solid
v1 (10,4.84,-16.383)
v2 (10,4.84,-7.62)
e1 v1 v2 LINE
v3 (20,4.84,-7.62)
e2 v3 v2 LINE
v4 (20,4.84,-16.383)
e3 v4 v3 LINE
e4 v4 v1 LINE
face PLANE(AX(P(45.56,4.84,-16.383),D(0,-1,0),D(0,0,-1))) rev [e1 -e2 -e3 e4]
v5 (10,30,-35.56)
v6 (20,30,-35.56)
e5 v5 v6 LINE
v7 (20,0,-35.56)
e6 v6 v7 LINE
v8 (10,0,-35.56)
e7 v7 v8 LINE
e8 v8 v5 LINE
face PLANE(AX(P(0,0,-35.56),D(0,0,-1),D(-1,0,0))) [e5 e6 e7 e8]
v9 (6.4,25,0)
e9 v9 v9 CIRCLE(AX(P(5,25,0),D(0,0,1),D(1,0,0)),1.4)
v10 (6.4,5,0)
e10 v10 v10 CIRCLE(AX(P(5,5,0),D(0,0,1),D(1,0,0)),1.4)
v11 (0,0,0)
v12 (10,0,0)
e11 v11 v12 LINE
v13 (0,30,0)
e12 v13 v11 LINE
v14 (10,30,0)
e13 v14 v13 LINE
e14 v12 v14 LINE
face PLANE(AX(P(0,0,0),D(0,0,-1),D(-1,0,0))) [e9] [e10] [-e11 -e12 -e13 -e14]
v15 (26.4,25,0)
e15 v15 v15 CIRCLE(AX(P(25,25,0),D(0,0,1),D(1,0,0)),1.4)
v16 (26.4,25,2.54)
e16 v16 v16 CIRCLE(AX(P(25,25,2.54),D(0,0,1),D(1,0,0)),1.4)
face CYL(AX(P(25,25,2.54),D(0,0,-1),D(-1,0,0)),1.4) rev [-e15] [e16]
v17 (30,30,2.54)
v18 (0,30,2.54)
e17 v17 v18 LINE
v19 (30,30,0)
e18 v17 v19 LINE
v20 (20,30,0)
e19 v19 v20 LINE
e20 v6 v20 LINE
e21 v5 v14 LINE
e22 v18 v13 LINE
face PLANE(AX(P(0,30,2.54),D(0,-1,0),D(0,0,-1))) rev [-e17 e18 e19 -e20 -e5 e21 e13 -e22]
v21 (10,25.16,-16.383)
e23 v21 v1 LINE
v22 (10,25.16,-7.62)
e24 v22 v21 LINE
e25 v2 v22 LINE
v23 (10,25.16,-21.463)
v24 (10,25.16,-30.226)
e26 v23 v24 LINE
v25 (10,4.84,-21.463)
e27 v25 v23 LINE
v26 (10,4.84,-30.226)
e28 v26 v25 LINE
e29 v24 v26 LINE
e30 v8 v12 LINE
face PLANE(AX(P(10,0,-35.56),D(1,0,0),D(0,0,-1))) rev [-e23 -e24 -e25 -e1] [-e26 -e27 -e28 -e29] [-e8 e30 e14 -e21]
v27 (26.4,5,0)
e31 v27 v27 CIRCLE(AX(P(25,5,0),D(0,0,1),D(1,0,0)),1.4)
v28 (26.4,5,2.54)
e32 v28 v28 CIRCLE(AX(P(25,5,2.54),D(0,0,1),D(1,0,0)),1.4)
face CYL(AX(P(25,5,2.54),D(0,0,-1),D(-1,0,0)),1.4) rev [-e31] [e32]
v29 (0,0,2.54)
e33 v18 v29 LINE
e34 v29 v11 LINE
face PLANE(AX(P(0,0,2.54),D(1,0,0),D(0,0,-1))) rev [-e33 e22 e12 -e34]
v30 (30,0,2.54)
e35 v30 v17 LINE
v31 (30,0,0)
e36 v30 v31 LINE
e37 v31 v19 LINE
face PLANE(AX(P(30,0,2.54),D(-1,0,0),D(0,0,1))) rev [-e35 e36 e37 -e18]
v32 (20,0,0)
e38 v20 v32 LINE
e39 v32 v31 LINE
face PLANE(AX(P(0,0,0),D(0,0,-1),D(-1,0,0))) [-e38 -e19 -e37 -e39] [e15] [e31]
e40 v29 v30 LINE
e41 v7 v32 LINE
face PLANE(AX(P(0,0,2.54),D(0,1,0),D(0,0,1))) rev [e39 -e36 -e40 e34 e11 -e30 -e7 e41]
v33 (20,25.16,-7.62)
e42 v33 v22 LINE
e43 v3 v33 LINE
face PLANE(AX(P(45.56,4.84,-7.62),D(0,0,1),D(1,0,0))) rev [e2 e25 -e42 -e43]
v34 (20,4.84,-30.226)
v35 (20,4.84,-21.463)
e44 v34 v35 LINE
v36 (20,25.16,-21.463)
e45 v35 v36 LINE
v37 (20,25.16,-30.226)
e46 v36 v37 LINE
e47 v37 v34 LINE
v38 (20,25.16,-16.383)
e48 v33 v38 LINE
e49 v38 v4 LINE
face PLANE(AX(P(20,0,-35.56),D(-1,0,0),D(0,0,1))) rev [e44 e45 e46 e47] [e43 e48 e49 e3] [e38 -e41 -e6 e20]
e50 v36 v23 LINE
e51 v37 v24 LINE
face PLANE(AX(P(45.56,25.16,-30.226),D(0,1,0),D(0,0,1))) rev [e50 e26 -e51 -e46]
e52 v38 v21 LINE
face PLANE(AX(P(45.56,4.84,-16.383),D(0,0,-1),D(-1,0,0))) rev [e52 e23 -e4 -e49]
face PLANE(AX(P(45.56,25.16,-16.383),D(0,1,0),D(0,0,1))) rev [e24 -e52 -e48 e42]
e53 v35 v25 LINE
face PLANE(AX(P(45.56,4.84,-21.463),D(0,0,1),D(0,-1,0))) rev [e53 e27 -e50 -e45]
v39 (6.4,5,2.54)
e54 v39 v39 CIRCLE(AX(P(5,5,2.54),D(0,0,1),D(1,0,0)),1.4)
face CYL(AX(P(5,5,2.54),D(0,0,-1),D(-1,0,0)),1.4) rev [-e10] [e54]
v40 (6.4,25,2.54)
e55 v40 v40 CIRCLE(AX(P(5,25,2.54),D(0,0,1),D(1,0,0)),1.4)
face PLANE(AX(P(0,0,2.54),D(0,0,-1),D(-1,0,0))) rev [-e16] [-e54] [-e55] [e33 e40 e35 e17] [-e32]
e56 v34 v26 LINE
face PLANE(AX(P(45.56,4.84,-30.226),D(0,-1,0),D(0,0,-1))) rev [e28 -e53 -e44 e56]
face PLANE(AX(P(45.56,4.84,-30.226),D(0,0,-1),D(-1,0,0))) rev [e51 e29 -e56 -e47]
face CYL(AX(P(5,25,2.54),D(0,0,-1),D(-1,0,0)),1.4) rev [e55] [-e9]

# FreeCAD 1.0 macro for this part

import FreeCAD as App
import Part
import Sketcher
Q = App.Units.Quantity


def add_polygon(sketch, points):
    """Adds a closed chain of lines whose ends are joined by coincident constraints."""
    first, n = sketch.GeometryCount, len(points)
    for a, b in zip(points, points[1:] + points[:1]):
        sketch.addGeometry(Part.LineSegment(App.Vector(*a, 0), App.Vector(*b, 0)), False)
    for i in range(n):
        sketch.addConstraint(Sketcher.Constraint("Coincident", first + i, 2, first + (i + 1) % n, 1))

doc = App.newDocument("Part")
body = doc.addObject("PartDesign::Body", "Body")

# Sketch on XY plane
sketch1 = doc.addObject("Sketcher::SketchObject", "Sketch")
body.addObject(sketch1)
sketch1.AttachmentSupport = (doc.XY_Plane, [""])
sketch1.MapMode = "FlatFace"
add_polygon(sketch1, [(0, 30), (0, 0), (30, 0), (30, 30)])  # lines 0-3
sketch1.addGeometry(Part.Circle(App.Vector(5, 5, 0), App.Vector(0, 0, 1), 1.4), False)  # 4
sketch1.addGeometry(Part.Circle(App.Vector(25, 5, 0), App.Vector(0, 0, 1), 1.4), False)  # 5
sketch1.addGeometry(Part.Circle(App.Vector(5, 25, 0), App.Vector(0, 0, 1), 1.4), False)  # 6
sketch1.addGeometry(Part.Circle(App.Vector(25, 25, 0), App.Vector(0, 0, 1), 1.4), False)  # 7
sketch1.addConstraint([
    Sketcher.Constraint("Vertical", 0),
    Sketcher.Constraint("Horizontal", 1),
    Sketcher.Constraint("Vertical", 2),
    Sketcher.Constraint("Horizontal", 3),
    Sketcher.Constraint("Coincident", 0, 2, -1, 1),
    Sketcher.Constraint("Equal", 4, 5),
    Sketcher.Constraint("Equal", 5, 6),
    Sketcher.Constraint("Equal", 6, 7),
    Sketcher.Constraint("Horizontal", 4, 3, 5, 3),
    Sketcher.Constraint("Horizontal", 6, 3, 7, 3),
    Sketcher.Constraint("Vertical", 4, 3, 6, 3),
    Sketcher.Constraint("Vertical", 5, 3, 7, 3),
    Sketcher.Constraint("Equal", 3, 0),
    Sketcher.Constraint("Diameter", 4, Q("2.8 mm")),
    Sketcher.Constraint("DistanceX", 1, 1, 1, 2, Q("30 mm")),
    Sketcher.Constraint("DistanceX", -1, 1, 4, 3, Q("5 mm")),
    Sketcher.Constraint("DistanceY", -1, 1, 4, 3, Q("5 mm")),
    Sketcher.Constraint("DistanceX", -1, 1, 5, 3, Q("25 mm")),
    Sketcher.Constraint("DistanceY", -1, 1, 6, 3, Q("25 mm")),
])
pad1 = doc.addObject("PartDesign::Pad", "Pad")
body.addObject(pad1)
pad1.Profile = sketch1
pad1.Length = Q("0.1 in")

# Sketch on XY plane
sketch2 = doc.addObject("Sketcher::SketchObject", "Sketch001")
body.addObject(sketch2)
sketch2.AttachmentSupport = (doc.XY_Plane, [""])
sketch2.MapMode = "FlatFace"
add_polygon(sketch2, [(20, 30), (20, 0), (10, 0), (10, 30)])  # lines 0-3
sketch2.addConstraint([
    Sketcher.Constraint("Vertical", 0),
    Sketcher.Constraint("Horizontal", 1),
    Sketcher.Constraint("Vertical", 2),
    Sketcher.Constraint("Horizontal", 3),
    Sketcher.Constraint("PointOnObject", 0, 2, -1),
    Sketcher.Constraint("DistanceX", 1, 2, 1, 1, Q("10 mm")),
    Sketcher.Constraint("DistanceY", 0, 2, 0, 1, Q("30 mm")),
    Sketcher.Constraint("DistanceX", -1, 1, 0, 2, Q("20 mm")),
])
pad2 = doc.addObject("PartDesign::Pad", "Pad001")
body.addObject(pad2)
pad2.Profile = sketch2
pad2.Length = Q("1.4 in")
pad2.Reversed = True

# Sketch on YZ plane
sketch3 = doc.addObject("Sketcher::SketchObject", "Sketch002")
body.addObject(sketch3)
sketch3.AttachmentSupport = (doc.YZ_Plane, [""])
sketch3.MapMode = "FlatFace"
sketch3.AttachmentOffset = App.Placement(App.Vector(0, 0, 10), App.Rotation())
add_polygon(sketch3, [(25.16, -30.226), (4.84, -30.226), (4.84, -21.463), (25.16, -21.463)])  # lines 0-3
add_polygon(sketch3, [(25.16, -16.383), (4.84, -16.383), (4.84, -7.62), (25.16, -7.62)])  # lines 4-7
sketch3.addConstraint([
    Sketcher.Constraint("Horizontal", 0),
    Sketcher.Constraint("Vertical", 1),
    Sketcher.Constraint("Horizontal", 2),
    Sketcher.Constraint("Vertical", 3),
    Sketcher.Constraint("Horizontal", 4),
    Sketcher.Constraint("Vertical", 5),
    Sketcher.Constraint("Horizontal", 6),
    Sketcher.Constraint("Vertical", 7),
    Sketcher.Constraint("Vertical", 1, 2, 4, 2),
    Sketcher.Constraint("Vertical", 3, 2, 6, 2),
    Sketcher.Constraint("Equal", 3, 5),
    Sketcher.Constraint("DistanceX", 0, 2, 0, 1, Q("0.8 in")),
    Sketcher.Constraint("DistanceY", 5, 2, -1, 1, Q("0.3 in")),
    Sketcher.Constraint("DistanceY", 1, 2, 4, 2, Q("0.2 in")),
    Sketcher.Constraint("DistanceY", 1, 1, 1, 2, Q("0.345 in")),
    Sketcher.Constraint("DistanceX", -1, 1, 0, 2, Q("4.84 mm")),
])
pocket1 = doc.addObject("PartDesign::Pocket", "Pocket")
body.addObject(pocket1)
pocket1.Profile = sketch3
pocket1.Length = Q("1.4 in")
pocket1.Reversed = True

doc.recompute()
